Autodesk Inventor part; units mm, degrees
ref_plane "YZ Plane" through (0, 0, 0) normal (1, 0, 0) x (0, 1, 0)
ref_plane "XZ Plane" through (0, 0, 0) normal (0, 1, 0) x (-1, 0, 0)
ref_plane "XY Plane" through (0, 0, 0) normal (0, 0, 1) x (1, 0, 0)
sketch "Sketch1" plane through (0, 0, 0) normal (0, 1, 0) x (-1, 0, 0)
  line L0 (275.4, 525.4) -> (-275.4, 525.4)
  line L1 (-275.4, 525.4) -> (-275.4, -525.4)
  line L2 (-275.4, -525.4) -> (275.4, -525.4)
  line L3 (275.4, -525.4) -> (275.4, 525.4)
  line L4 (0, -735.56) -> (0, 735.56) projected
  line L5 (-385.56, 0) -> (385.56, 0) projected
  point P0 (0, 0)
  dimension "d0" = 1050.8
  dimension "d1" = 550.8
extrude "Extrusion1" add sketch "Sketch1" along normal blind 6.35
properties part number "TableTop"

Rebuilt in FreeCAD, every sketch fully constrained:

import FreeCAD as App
import Part
import Sketcher
from FreeCAD import Vector


def add_polygon(sketch, points):
    """Adds a closed chain of lines whose ends are joined by coincident constraints."""
    first, n = sketch.GeometryCount, len(points)
    for a, b in zip(points, points[1:] + points[:1]):
        sketch.addGeometry(Part.LineSegment(App.Vector(*a, 0), App.Vector(*b, 0)), False)
    for i in range(n):
        sketch.addConstraint(Sketcher.Constraint("Coincident", first + i, 2, first + (i + 1) % n, 1))

doc = App.newDocument("Part")
body = doc.addObject("PartDesign::Body", "Body")

# Sketch on XZ plane
sketch1 = doc.addObject("Sketcher::SketchObject", "Sketch")
body.addObject(sketch1)
sketch1.AttachmentSupport = (doc.XZ_Plane, [""])
sketch1.MapMode = "FlatFace"
add_polygon(sketch1, [(-275, 525), (275, 525), (275, -525), (-275, -525)])  # lines 0-3
sketch1.addConstraint(Sketcher.Constraint("Horizontal", 0))
sketch1.addConstraint(Sketcher.Constraint("Vertical", 1))
sketch1.addConstraint(Sketcher.Constraint("Horizontal", 2))
sketch1.addConstraint(Sketcher.Constraint("Vertical", 3))
sketch1.addConstraint(Sketcher.Constraint("Symmetric", 0, 2, 2, 2, -1, 1))
sketch1.addConstraint(Sketcher.Constraint("DistanceX", 0, 1, 0, 2, 550.8))
sketch1.addConstraint(Sketcher.Constraint("DistanceY", 1, 2, 1, 1, 1050.8))
pad1 = doc.addObject("PartDesign::Pad", "Pad")
body.addObject(pad1)
pad1.Profile = sketch1
pad1.Length = 6.35
pad1.Reversed = True

doc.recompute()
